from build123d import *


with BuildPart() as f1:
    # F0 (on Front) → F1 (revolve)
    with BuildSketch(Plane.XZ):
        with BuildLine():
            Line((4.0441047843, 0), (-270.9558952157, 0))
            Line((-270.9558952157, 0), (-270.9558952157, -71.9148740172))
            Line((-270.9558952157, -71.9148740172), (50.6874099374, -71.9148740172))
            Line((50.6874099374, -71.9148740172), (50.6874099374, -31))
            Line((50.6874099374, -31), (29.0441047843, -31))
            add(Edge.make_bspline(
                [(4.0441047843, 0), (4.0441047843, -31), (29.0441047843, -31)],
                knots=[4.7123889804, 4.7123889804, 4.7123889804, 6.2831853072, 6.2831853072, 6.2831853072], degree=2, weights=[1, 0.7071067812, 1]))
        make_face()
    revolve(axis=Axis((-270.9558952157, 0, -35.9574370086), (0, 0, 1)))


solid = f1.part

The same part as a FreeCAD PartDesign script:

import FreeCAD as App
import Part
import Sketcher
Q = App.Units.Quantity

doc = App.newDocument("Part")
body = doc.addObject("PartDesign::Body", "Body")

# Sketch on XZ plane
sketch1 = body.newObject("Sketcher::SketchObject", "Sketch")
sketch1.AttachmentSupport = (doc.getObject("XZ_Plane"), [""])
sketch1.MapMode = "FlatFace"
sketch1.addGeometry([
    Part.LineSegment(App.Vector(4.044105, 0, 0), App.Vector(-270.955895, 0, 0)),  # 0
    Part.LineSegment(App.Vector(-270.955895, 0, 0), App.Vector(-270.955895, -71.914874, 0)),  # 1
    Part.LineSegment(App.Vector(-270.955895, -71.914874, 0), App.Vector(50.68741, -71.914874, 0)),  # 2
    Part.LineSegment(App.Vector(50.68741, -71.914874, 0), App.Vector(50.68741, -31, 0)),  # 3
    Part.LineSegment(App.Vector(50.68741, -31, 0), App.Vector(29.044105, -31, 0)),  # 4
    Part.BSplineCurve([App.Vector(4.044105, 0, 0), App.Vector(4.044105, -31, 0), App.Vector(29.044105, -31, 0)], [3, 3], [4.71238898, 6.283185307], False, 2, [1, 0.707106781, 1], False),  # 5
], False)
sketch1.addGeometry(Part.LineSegment(App.Vector(-270.955895, -71.914874, 0), App.Vector(-270.955895, 0, 0)), True)  # axis
sketch1.addConstraint([
    Sketcher.Constraint("Block", 5),
    Sketcher.Constraint("Coincident", 0, 2, 1, 1),
    Sketcher.Constraint("Coincident", 1, 2, 2, 1),
    Sketcher.Constraint("Coincident", 2, 2, 3, 1),
    Sketcher.Constraint("Coincident", 3, 2, 4, 1),
    Sketcher.Constraint("Coincident", 4, 2, 5, 2),
    Sketcher.Constraint("Coincident", 5, 1, 0, 1),
    Sketcher.Constraint("Horizontal", 0),
    Sketcher.Constraint("Vertical", 1),
    Sketcher.Constraint("Horizontal", 2),
    Sketcher.Constraint("Vertical", 3),
    Sketcher.Constraint("Horizontal", 4),
    Sketcher.Constraint("Vertical", 6),
    Sketcher.Constraint("Coincident", 6, 1, 1, 2),
    Sketcher.Constraint("PointOnObject", 6, 2, -1),
    Sketcher.Constraint("DistanceX", 0, 2, 0, 1, Q("275 mm")),
    Sketcher.Constraint("DistanceX", 2, 1, 2, 2, Q("321.643305 mm")),
    Sketcher.Constraint("DistanceY", 1, 2, 1, 1, Q("71.914874 mm")),
])
revolution = body.newObject("PartDesign::Revolution", "Revolution")
revolution.Profile = sketch1
revolution.ReferenceAxis = (sketch1, ["Axis0"])
revolution.Angle = 360

doc.recompute()
